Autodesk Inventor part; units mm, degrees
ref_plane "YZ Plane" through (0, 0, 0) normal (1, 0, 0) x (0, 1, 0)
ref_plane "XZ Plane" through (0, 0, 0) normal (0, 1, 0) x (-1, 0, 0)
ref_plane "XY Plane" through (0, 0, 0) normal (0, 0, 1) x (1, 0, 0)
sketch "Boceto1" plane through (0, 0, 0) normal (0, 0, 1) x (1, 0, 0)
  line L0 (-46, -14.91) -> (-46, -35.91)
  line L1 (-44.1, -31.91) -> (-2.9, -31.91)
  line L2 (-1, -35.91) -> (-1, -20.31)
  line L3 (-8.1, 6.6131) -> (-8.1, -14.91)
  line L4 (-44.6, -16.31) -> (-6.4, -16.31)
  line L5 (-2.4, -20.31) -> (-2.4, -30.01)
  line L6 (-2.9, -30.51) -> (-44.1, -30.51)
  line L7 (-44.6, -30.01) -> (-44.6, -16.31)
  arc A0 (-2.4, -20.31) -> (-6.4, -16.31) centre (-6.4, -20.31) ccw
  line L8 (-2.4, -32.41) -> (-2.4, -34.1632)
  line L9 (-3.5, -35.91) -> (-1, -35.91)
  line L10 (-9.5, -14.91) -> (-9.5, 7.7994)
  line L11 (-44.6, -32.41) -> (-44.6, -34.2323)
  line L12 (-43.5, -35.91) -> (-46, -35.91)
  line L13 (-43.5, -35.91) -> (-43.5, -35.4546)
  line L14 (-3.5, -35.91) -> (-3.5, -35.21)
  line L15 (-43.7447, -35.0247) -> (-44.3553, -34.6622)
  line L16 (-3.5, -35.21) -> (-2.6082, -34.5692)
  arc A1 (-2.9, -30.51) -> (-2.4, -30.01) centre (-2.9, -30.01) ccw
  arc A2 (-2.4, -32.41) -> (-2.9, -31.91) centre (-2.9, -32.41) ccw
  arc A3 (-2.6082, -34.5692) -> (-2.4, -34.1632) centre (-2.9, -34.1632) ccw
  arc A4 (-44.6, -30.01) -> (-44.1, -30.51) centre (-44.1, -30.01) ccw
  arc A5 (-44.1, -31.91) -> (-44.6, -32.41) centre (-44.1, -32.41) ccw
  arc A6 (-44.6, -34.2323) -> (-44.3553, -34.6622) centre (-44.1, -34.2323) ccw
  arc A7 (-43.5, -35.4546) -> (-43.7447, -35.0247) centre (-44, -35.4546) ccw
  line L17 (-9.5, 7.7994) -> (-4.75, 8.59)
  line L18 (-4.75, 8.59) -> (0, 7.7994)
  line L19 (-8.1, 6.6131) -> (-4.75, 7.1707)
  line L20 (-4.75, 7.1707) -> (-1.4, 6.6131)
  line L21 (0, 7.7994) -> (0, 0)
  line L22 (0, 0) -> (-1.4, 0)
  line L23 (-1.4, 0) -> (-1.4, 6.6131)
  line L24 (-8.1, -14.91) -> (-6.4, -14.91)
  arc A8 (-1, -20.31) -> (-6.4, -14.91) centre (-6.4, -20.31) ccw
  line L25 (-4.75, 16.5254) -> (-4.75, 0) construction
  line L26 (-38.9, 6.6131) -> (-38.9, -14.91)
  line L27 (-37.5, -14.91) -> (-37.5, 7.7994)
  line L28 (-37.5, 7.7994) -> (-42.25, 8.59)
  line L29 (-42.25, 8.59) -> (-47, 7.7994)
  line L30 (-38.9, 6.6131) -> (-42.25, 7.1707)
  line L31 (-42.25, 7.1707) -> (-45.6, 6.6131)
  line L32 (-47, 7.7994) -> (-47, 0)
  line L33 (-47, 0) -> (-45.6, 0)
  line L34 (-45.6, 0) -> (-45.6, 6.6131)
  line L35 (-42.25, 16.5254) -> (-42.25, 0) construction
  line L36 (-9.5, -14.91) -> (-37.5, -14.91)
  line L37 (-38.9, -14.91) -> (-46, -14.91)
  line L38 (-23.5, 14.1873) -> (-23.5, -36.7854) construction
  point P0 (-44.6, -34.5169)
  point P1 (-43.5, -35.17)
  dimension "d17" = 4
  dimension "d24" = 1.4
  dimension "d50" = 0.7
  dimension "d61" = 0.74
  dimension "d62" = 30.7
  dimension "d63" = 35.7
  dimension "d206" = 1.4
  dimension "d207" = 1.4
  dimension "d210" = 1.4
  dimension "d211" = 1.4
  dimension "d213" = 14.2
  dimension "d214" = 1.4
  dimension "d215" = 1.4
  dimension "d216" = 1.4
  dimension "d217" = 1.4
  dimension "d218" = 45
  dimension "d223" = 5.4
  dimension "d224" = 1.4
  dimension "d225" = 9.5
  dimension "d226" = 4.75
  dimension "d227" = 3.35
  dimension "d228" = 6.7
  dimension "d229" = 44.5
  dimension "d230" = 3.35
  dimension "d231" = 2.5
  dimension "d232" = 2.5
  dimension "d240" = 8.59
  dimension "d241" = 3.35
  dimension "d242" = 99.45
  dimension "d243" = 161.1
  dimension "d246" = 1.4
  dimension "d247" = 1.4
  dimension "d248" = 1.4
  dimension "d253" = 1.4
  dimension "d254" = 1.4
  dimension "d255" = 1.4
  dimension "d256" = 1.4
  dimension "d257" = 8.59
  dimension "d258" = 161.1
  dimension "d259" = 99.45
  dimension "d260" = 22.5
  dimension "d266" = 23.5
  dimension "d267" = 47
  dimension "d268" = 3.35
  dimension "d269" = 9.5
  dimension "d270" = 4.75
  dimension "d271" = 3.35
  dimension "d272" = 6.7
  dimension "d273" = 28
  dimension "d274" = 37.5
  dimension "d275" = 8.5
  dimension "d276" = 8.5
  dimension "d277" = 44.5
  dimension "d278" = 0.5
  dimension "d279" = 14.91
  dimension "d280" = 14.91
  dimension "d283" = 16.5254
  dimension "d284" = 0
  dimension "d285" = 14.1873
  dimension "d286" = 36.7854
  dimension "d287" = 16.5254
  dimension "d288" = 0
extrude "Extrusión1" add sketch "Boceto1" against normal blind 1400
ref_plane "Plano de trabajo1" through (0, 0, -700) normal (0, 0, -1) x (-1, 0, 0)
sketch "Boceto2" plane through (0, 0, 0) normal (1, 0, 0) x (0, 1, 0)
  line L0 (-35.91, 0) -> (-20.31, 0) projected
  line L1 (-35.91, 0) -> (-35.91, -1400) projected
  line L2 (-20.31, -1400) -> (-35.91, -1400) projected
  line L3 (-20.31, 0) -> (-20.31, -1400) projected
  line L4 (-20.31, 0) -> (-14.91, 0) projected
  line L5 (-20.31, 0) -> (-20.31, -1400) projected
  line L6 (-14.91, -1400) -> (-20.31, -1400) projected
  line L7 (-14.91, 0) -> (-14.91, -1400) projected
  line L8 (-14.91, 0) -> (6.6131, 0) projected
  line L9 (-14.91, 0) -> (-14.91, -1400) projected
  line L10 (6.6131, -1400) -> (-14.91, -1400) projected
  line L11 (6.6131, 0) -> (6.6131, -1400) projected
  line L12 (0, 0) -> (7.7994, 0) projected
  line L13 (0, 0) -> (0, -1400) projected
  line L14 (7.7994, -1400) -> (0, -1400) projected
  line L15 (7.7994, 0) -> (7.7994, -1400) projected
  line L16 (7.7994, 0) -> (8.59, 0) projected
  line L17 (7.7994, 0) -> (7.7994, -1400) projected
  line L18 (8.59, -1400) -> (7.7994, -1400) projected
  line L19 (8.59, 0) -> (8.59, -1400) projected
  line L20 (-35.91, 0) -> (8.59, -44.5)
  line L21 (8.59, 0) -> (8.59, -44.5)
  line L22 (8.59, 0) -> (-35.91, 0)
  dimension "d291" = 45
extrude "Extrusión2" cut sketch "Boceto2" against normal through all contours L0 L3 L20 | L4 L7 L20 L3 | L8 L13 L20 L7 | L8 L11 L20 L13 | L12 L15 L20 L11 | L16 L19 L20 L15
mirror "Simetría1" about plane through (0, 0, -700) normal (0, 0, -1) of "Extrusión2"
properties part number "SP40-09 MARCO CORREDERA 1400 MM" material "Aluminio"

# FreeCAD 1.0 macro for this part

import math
import FreeCAD as App
import Part
import Sketcher
Q = App.Units.Quantity

doc = App.newDocument("Part")
params = doc.addObject("Spreadsheet::Sheet", "Params")
for row, (alias, value) in enumerate([
    ("sketch1_radius", "4 mm"),
    ("sketch1_radius2", "0.5 mm"),
    ("sketch1_radius3", "5.4 mm"),
    ("sketch1_width", "28 mm"),
    ("sketch1_width2", "2.5 mm"),
    ("pad1_length", "1400 mm"),
    ("sketch2_width", "44.5 mm"),
], start=1):
    params.set(f"A{row}", alias)
    params.set(f"B{row}", "=" + value)
    params.setAlias(f"B{row}", alias)

body = doc.addObject("PartDesign::Body", "Body")

sketch1 = doc.addObject("Sketcher::SketchObject", "Sketch")
body.addObject(sketch1)
sketch1.AttachmentSupport = (doc.XY_Plane, [""])
sketch1.MapMode = "FlatFace"
sketch1.addGeometry([
    Part.LineSegment(App.Vector(-38.9, -14.91, 0), App.Vector(-46, -14.91, 0)),
    Part.LineSegment(App.Vector(-46, -14.91, 0), App.Vector(-46, -35.91, 0)),
    Part.LineSegment(App.Vector(-46, -35.91, 0), App.Vector(-43.5, -35.91, 0)),
    Part.LineSegment(App.Vector(-43.5, -35.91, 0), App.Vector(-43.5, -35.45, 0)),
    Part.ArcOfCircle(Part.Circle(App.Vector(-44, -35.45, 0), App.Vector(0, 0, 1), 0.5), math.radians(0), math.radians(59)),
    Part.LineSegment(App.Vector(-43.74, -35.02, 0), App.Vector(-44.36, -34.66, 0)),
    Part.ArcOfCircle(Part.Circle(App.Vector(-44.1, -34.23, 0), App.Vector(0, 0, 1), 0.5), math.radians(180), math.radians(239)),
    Part.LineSegment(App.Vector(-44.6, -34.23, 0), App.Vector(-44.6, -32.41, 0)),
    Part.ArcOfCircle(Part.Circle(App.Vector(-44.1, -32.41, 0), App.Vector(0, 0, 1), 0.5), math.radians(90), math.radians(180)),
    Part.LineSegment(App.Vector(-44.1, -31.91, 0), App.Vector(-2.9, -31.91, 0)),
    Part.ArcOfCircle(Part.Circle(App.Vector(-2.9, -32.41, 0), App.Vector(0, 0, 1), 0.5), math.radians(0), math.radians(90)),
    Part.LineSegment(App.Vector(-2.4, -32.41, 0), App.Vector(-2.4, -34.16, 0)),
    Part.ArcOfCircle(Part.Circle(App.Vector(-2.9, -34.16, 0), App.Vector(0, 0, 1), 0.5), math.radians(-54), math.radians(0)),
    Part.LineSegment(App.Vector(-2.61, -34.57, 0), App.Vector(-3.5, -35.21, 0)),
    Part.LineSegment(App.Vector(-3.5, -35.21, 0), App.Vector(-3.5, -35.91, 0)),
    Part.LineSegment(App.Vector(-3.5, -35.91, 0), App.Vector(-1, -35.91, 0)),
    Part.LineSegment(App.Vector(-1, -35.91, 0), App.Vector(-1, -20.31, 0)),
    Part.ArcOfCircle(Part.Circle(App.Vector(-6.4, -20.31, 0), App.Vector(0, 0, 1), 5.4), math.radians(0), math.radians(90)),
    Part.LineSegment(App.Vector(-6.4, -14.91, 0), App.Vector(-8.1, -14.91, 0)),
    Part.LineSegment(App.Vector(-8.1, -14.91, 0), App.Vector(-8.1, 6.61, 0)),
    Part.LineSegment(App.Vector(-8.1, 6.61, 0), App.Vector(-4.75, 7.17, 0)),
    Part.LineSegment(App.Vector(-4.75, 7.17, 0), App.Vector(-1.4, 6.61, 0)),
    Part.LineSegment(App.Vector(-1.4, 6.61, 0), App.Vector(-1.4, 0, 0)),
    Part.LineSegment(App.Vector(-1.4, 0, 0), App.Vector(0, 0, 0)),
    Part.LineSegment(App.Vector(0, 0, 0), App.Vector(0, 7.8, 0)),
    Part.LineSegment(App.Vector(0, 7.8, 0), App.Vector(-4.75, 8.59, 0)),
    Part.LineSegment(App.Vector(-4.75, 8.59, 0), App.Vector(-9.5, 7.8, 0)),
    Part.LineSegment(App.Vector(-9.5, 7.8, 0), App.Vector(-9.5, -14.91, 0)),
    Part.LineSegment(App.Vector(-9.5, -14.91, 0), App.Vector(-37.5, -14.91, 0)),
    Part.LineSegment(App.Vector(-37.5, -14.91, 0), App.Vector(-37.5, 7.8, 0)),
    Part.LineSegment(App.Vector(-37.5, 7.8, 0), App.Vector(-42.25, 8.59, 0)),
    Part.LineSegment(App.Vector(-42.25, 8.59, 0), App.Vector(-47, 7.8, 0)),
    Part.LineSegment(App.Vector(-47, 7.8, 0), App.Vector(-47, 0, 0)),
    Part.LineSegment(App.Vector(-47, 0, 0), App.Vector(-45.6, 0, 0)),
    Part.LineSegment(App.Vector(-45.6, 0, 0), App.Vector(-45.6, 6.61, 0)),
    Part.LineSegment(App.Vector(-45.6, 6.61, 0), App.Vector(-42.25, 7.17, 0)),
    Part.LineSegment(App.Vector(-42.25, 7.17, 0), App.Vector(-38.9, 6.61, 0)),
    Part.LineSegment(App.Vector(-38.9, 6.61, 0), App.Vector(-38.9, -14.91, 0)),
    Part.LineSegment(App.Vector(-44.6, -30.01, 0), App.Vector(-44.6, -16.31, 0)),
    Part.LineSegment(App.Vector(-44.6, -16.31, 0), App.Vector(-6.4, -16.31, 0)),
    Part.ArcOfCircle(Part.Circle(App.Vector(-6.4, -20.31, 0), App.Vector(0, 0, 1), 4), math.radians(0), math.radians(90)),
    Part.LineSegment(App.Vector(-2.4, -20.31, 0), App.Vector(-2.4, -30.01, 0)),
    Part.ArcOfCircle(Part.Circle(App.Vector(-2.9, -30.01, 0), App.Vector(0, 0, 1), 0.5), math.radians(-90), math.radians(0)),
    Part.LineSegment(App.Vector(-2.9, -30.51, 0), App.Vector(-44.1, -30.51, 0)),
    Part.ArcOfCircle(Part.Circle(App.Vector(-44.1, -30.01, 0), App.Vector(0, 0, 1), 0.5), math.radians(180), math.radians(270)),
], False)
sketch1.addConstraint([
    Sketcher.Constraint("Coincident", 0, 2, 1, 1),
    Sketcher.Constraint("Coincident", 1, 2, 2, 1),
    Sketcher.Constraint("Coincident", 2, 2, 3, 1),
    Sketcher.Constraint("Tangent", 3, 2, 4, 1),
    Sketcher.Constraint("Tangent", 4, 2, 5, 1),
    Sketcher.Constraint("Tangent", 5, 2, 6, 2),
    Sketcher.Constraint("Tangent", 6, 1, 7, 1),
    Sketcher.Constraint("Tangent", 7, 2, 8, 2),
    Sketcher.Constraint("Tangent", 8, 1, 9, 1),
    Sketcher.Constraint("Tangent", 9, 2, 10, 2),
    Sketcher.Constraint("Tangent", 10, 1, 11, 1),
    Sketcher.Constraint("Tangent", 11, 2, 12, 2),
    Sketcher.Constraint("Tangent", 12, 1, 13, 1),
    Sketcher.Constraint("Coincident", 13, 2, 14, 1),
    Sketcher.Constraint("Coincident", 14, 2, 15, 1),
    Sketcher.Constraint("Coincident", 15, 2, 16, 1),
    Sketcher.Constraint("Tangent", 16, 2, 17, 1),
    Sketcher.Constraint("Tangent", 17, 2, 18, 1),
    Sketcher.Constraint("Coincident", 18, 2, 19, 1),
    Sketcher.Constraint("Coincident", 19, 2, 20, 1),
    Sketcher.Constraint("Coincident", 20, 2, 21, 1),
    Sketcher.Constraint("Coincident", 21, 2, 22, 1),
    Sketcher.Constraint("Coincident", 22, 2, 23, 1),
    Sketcher.Constraint("Coincident", 23, 2, 24, 1),
    Sketcher.Constraint("Coincident", 24, 2, 25, 1),
    Sketcher.Constraint("Coincident", 25, 2, 26, 1),
    Sketcher.Constraint("Coincident", 26, 2, 27, 1),
    Sketcher.Constraint("Coincident", 27, 2, 28, 1),
    Sketcher.Constraint("Coincident", 28, 2, 29, 1),
    Sketcher.Constraint("Coincident", 29, 2, 30, 1),
    Sketcher.Constraint("Coincident", 30, 2, 31, 1),
    Sketcher.Constraint("Coincident", 31, 2, 32, 1),
    Sketcher.Constraint("Coincident", 32, 2, 33, 1),
    Sketcher.Constraint("Coincident", 33, 2, 34, 1),
    Sketcher.Constraint("Coincident", 34, 2, 35, 1),
    Sketcher.Constraint("Coincident", 35, 2, 36, 1),
    Sketcher.Constraint("Coincident", 36, 2, 37, 1),
    Sketcher.Constraint("Coincident", 37, 2, 0, 1),
    Sketcher.Constraint("Coincident", 38, 2, 39, 1),
    Sketcher.Constraint("Tangent", 39, 2, 40, 2),
    Sketcher.Constraint("Tangent", 40, 1, 41, 1),
    Sketcher.Constraint("Tangent", 41, 2, 42, 2),
    Sketcher.Constraint("Tangent", 42, 1, 43, 1),
    Sketcher.Constraint("Tangent", 43, 2, 44, 2),
    Sketcher.Constraint("Tangent", 44, 1, 38, 1),
    Sketcher.Constraint("Horizontal", 0),
    Sketcher.Constraint("Vertical", 1),
    Sketcher.Constraint("Horizontal", 2),
    Sketcher.Constraint("Vertical", 3),
    Sketcher.Constraint("Vertical", 7),
    Sketcher.Constraint("Horizontal", 9),
    Sketcher.Constraint("Vertical", 11),
    Sketcher.Constraint("Vertical", 14),
    Sketcher.Constraint("Horizontal", 15),
    Sketcher.Constraint("Vertical", 16),
    Sketcher.Constraint("Horizontal", 18),
    Sketcher.Constraint("Vertical", 19),
    Sketcher.Constraint("Vertical", 22),
    Sketcher.Constraint("Horizontal", 23),
    Sketcher.Constraint("Vertical", 24),
    Sketcher.Constraint("Vertical", 27),
    Sketcher.Constraint("Horizontal", 28),
    Sketcher.Constraint("Vertical", 29),
    Sketcher.Constraint("Vertical", 32),
    Sketcher.Constraint("Horizontal", 33),
    Sketcher.Constraint("Vertical", 34),
    Sketcher.Constraint("Vertical", 37),
    Sketcher.Constraint("Vertical", 38),
    Sketcher.Constraint("Horizontal", 39),
    Sketcher.Constraint("Vertical", 41),
    Sketcher.Constraint("Horizontal", 43),
    Sketcher.Constraint("Coincident", 23, 2, -1, 1),
    Sketcher.Constraint("Coincident", 40, 3, 17, 3),
    Sketcher.Constraint("Equal", 4, 6),
    Sketcher.Constraint("Equal", 6, 8),
    Sketcher.Constraint("Equal", 8, 10),
    Sketcher.Constraint("Equal", 10, 12),
    Sketcher.Constraint("Equal", 12, 42),
    Sketcher.Constraint("Equal", 42, 44),
    Sketcher.Constraint("PointOnObject", 32, 2, -1),
    Sketcher.Constraint("Parallel", 21, 25),
    Sketcher.Constraint("Parallel", 20, 26),
    Sketcher.Constraint("Parallel", 25, 30),
    Sketcher.Constraint("Parallel", 26, 31),
    Sketcher.Constraint("Parallel", 31, 35),
    Sketcher.Constraint("Parallel", 30, 36),
    Sketcher.Constraint("Horizontal", 2, 2, 14, 2),
    Sketcher.Constraint("Horizontal", 0, 2, 17, 2),
    Sketcher.Constraint("Horizontal", 19, 2, 21, 2),
    Sketcher.Constraint("Horizontal", 24, 2, 26, 2),
    Sketcher.Constraint("Horizontal", 18, 2, 27, 2),
    Sketcher.Constraint("Horizontal", 26, 2, 29, 2),
    Sketcher.Constraint("Horizontal", 25, 2, 30, 2),
    Sketcher.Constraint("Horizontal", 29, 2, 31, 2),
    Sketcher.Constraint("Horizontal", 21, 2, 34, 2),
    Sketcher.Constraint("Horizontal", 20, 2, 35, 2),
    Sketcher.Constraint("Horizontal", 34, 2, 36, 2),
    Sketcher.Constraint("Vertical", 12, 3, 42, 3),
    Sketcher.Constraint("Vertical", 8, 3, 44, 3),
    Sketcher.Constraint("Vertical", 20, 2, 25, 2),
    Sketcher.Constraint("Vertical", 30, 2, 35, 2),
    Sketcher.Constraint("Equal", 2, 15),
    Sketcher.Constraint("Equal", 23, 33),
    Sketcher.Constraint("Radius", 40, Q("4 mm")),
    Sketcher.Constraint("Radius", 4, Q("0.5 mm")),
    Sketcher.Constraint("Radius", 17, Q("5.4 mm")),
    Sketcher.Constraint("DistanceX", 28, 2, 28, 1, Q("28 mm")),
    Sketcher.Constraint("DistanceX", 2, 1, 2, 2, Q("2.5 mm")),
    Sketcher.Constraint("DistanceX", 23, 1, 23, 2, Q("1.4 mm")),
    Sketcher.Constraint("DistanceY", 14, 2, 14, 1, Q("0.7 mm")),
    Sketcher.Constraint("DistanceX", 31, 2, -1, 1, Q("47 mm")),
    Sketcher.Constraint("DistanceX", 27, 2, 16, 2, Q("8.5 mm")),
    Sketcher.Constraint("DistanceX", 0, 2, 28, 2, Q("8.5 mm")),
    Sketcher.Constraint("DistanceY", 0, 2, 30, 2, Q("23.5 mm")),
    Sketcher.Constraint("DistanceX", 0, 2, 38, 2, Q("1.4 mm")),
    Sketcher.Constraint("DistanceY", 9, 2, 42, 1, Q("1.4 mm")),
    Sketcher.Constraint("DistanceY", 1, 2, 1, 1, Q("21 mm")),
    Sketcher.Constraint("DistanceY", 0, 2, -1, 1, Q("14.91 mm")),
    Sketcher.Constraint("DistanceY", 38, 1, 38, 2, Q("13.7 mm")),
    Sketcher.Constraint("Angle", 13, Q("-144.301 deg")),
    Sketcher.Constraint("Angle", 20, Q("9.45 deg")),
    Sketcher.Constraint("Distance", 5, Q("0.71 mm")),
    Sketcher.Constraint("DistanceY", 19, 1, 19, 2, Q("21.523 mm")),
    Sketcher.Constraint("DistanceY", 3, 1, 3, 2, Q("0.4554 mm")),
])
sketch1.setExpression("Constraints[103]", "Params.sketch1_radius")
sketch1.setExpression("Constraints[104]", "Params.sketch1_radius2")
sketch1.setExpression("Constraints[105]", "Params.sketch1_radius3")
sketch1.setExpression("Constraints[106]", "Params.sketch1_width")
sketch1.setExpression("Constraints[107]", "Params.sketch1_width2")
pad1 = doc.addObject("PartDesign::Pad", "Pad")
body.addObject(pad1)
pad1.Profile = sketch1
pad1.setExpression("Length", "Params.pad1_length")
pad1.Reversed = True

sketch2 = doc.addObject("Sketcher::SketchObject", "Sketch001")
body.addObject(sketch2)
sketch2.AttachmentSupport = (doc.YZ_Plane, [""])
sketch2.MapMode = "FlatFace"
sketch2.addGeometry([
    Part.LineSegment(App.Vector(-36, 0, 0), App.Vector(9, -44, 0)),
    Part.LineSegment(App.Vector(9, -44, 0), App.Vector(9, 0, 0)),
    Part.LineSegment(App.Vector(9, 0, 0), App.Vector(-36, 0, 0)),
], False)
sketch2.addConstraint([
    Sketcher.Constraint("Coincident", 0, 2, 1, 1),
    Sketcher.Constraint("Coincident", 1, 2, 2, 1),
    Sketcher.Constraint("Coincident", 2, 2, 0, 1),
    Sketcher.Constraint("Vertical", 1),
    Sketcher.Constraint("Horizontal", 2),
    Sketcher.Constraint("PointOnObject", 1, 2, -1),
    Sketcher.Constraint("Equal", 2, 1),
    Sketcher.Constraint("DistanceX", 2, 2, 2, 1, Q("44.5 mm")),
    Sketcher.Constraint("DistanceX", -1, 1, 0, 2, Q("8.59 mm")),
])
sketch2.setExpression("Constraints[7]", "Params.sketch2_width")
pocket1 = doc.addObject("PartDesign::Pocket", "Pocket")
body.addObject(pocket1)
pocket1.Profile = sketch2
pocket1.Type = "ThroughAll"
doc.recompute()

datumplane = doc.addObject("PartDesign::Plane", "DatumPlane")
body.addObject(datumplane)
datumplane.AttachmentSupport = (doc.XY_Plane, [""])
datumplane.MapMode = "FlatFace"
datumplane.AttachmentOffset = App.Placement(App.Vector(0, 0, -700), App.Rotation())
mirrored = doc.addObject("PartDesign::Mirrored", "Mirrored")
body.addObject(mirrored)
mirrored.Originals = [pocket1]
mirrored.MirrorPlane = (datumplane, [""])
body.Tip = mirrored

doc.recompute()
